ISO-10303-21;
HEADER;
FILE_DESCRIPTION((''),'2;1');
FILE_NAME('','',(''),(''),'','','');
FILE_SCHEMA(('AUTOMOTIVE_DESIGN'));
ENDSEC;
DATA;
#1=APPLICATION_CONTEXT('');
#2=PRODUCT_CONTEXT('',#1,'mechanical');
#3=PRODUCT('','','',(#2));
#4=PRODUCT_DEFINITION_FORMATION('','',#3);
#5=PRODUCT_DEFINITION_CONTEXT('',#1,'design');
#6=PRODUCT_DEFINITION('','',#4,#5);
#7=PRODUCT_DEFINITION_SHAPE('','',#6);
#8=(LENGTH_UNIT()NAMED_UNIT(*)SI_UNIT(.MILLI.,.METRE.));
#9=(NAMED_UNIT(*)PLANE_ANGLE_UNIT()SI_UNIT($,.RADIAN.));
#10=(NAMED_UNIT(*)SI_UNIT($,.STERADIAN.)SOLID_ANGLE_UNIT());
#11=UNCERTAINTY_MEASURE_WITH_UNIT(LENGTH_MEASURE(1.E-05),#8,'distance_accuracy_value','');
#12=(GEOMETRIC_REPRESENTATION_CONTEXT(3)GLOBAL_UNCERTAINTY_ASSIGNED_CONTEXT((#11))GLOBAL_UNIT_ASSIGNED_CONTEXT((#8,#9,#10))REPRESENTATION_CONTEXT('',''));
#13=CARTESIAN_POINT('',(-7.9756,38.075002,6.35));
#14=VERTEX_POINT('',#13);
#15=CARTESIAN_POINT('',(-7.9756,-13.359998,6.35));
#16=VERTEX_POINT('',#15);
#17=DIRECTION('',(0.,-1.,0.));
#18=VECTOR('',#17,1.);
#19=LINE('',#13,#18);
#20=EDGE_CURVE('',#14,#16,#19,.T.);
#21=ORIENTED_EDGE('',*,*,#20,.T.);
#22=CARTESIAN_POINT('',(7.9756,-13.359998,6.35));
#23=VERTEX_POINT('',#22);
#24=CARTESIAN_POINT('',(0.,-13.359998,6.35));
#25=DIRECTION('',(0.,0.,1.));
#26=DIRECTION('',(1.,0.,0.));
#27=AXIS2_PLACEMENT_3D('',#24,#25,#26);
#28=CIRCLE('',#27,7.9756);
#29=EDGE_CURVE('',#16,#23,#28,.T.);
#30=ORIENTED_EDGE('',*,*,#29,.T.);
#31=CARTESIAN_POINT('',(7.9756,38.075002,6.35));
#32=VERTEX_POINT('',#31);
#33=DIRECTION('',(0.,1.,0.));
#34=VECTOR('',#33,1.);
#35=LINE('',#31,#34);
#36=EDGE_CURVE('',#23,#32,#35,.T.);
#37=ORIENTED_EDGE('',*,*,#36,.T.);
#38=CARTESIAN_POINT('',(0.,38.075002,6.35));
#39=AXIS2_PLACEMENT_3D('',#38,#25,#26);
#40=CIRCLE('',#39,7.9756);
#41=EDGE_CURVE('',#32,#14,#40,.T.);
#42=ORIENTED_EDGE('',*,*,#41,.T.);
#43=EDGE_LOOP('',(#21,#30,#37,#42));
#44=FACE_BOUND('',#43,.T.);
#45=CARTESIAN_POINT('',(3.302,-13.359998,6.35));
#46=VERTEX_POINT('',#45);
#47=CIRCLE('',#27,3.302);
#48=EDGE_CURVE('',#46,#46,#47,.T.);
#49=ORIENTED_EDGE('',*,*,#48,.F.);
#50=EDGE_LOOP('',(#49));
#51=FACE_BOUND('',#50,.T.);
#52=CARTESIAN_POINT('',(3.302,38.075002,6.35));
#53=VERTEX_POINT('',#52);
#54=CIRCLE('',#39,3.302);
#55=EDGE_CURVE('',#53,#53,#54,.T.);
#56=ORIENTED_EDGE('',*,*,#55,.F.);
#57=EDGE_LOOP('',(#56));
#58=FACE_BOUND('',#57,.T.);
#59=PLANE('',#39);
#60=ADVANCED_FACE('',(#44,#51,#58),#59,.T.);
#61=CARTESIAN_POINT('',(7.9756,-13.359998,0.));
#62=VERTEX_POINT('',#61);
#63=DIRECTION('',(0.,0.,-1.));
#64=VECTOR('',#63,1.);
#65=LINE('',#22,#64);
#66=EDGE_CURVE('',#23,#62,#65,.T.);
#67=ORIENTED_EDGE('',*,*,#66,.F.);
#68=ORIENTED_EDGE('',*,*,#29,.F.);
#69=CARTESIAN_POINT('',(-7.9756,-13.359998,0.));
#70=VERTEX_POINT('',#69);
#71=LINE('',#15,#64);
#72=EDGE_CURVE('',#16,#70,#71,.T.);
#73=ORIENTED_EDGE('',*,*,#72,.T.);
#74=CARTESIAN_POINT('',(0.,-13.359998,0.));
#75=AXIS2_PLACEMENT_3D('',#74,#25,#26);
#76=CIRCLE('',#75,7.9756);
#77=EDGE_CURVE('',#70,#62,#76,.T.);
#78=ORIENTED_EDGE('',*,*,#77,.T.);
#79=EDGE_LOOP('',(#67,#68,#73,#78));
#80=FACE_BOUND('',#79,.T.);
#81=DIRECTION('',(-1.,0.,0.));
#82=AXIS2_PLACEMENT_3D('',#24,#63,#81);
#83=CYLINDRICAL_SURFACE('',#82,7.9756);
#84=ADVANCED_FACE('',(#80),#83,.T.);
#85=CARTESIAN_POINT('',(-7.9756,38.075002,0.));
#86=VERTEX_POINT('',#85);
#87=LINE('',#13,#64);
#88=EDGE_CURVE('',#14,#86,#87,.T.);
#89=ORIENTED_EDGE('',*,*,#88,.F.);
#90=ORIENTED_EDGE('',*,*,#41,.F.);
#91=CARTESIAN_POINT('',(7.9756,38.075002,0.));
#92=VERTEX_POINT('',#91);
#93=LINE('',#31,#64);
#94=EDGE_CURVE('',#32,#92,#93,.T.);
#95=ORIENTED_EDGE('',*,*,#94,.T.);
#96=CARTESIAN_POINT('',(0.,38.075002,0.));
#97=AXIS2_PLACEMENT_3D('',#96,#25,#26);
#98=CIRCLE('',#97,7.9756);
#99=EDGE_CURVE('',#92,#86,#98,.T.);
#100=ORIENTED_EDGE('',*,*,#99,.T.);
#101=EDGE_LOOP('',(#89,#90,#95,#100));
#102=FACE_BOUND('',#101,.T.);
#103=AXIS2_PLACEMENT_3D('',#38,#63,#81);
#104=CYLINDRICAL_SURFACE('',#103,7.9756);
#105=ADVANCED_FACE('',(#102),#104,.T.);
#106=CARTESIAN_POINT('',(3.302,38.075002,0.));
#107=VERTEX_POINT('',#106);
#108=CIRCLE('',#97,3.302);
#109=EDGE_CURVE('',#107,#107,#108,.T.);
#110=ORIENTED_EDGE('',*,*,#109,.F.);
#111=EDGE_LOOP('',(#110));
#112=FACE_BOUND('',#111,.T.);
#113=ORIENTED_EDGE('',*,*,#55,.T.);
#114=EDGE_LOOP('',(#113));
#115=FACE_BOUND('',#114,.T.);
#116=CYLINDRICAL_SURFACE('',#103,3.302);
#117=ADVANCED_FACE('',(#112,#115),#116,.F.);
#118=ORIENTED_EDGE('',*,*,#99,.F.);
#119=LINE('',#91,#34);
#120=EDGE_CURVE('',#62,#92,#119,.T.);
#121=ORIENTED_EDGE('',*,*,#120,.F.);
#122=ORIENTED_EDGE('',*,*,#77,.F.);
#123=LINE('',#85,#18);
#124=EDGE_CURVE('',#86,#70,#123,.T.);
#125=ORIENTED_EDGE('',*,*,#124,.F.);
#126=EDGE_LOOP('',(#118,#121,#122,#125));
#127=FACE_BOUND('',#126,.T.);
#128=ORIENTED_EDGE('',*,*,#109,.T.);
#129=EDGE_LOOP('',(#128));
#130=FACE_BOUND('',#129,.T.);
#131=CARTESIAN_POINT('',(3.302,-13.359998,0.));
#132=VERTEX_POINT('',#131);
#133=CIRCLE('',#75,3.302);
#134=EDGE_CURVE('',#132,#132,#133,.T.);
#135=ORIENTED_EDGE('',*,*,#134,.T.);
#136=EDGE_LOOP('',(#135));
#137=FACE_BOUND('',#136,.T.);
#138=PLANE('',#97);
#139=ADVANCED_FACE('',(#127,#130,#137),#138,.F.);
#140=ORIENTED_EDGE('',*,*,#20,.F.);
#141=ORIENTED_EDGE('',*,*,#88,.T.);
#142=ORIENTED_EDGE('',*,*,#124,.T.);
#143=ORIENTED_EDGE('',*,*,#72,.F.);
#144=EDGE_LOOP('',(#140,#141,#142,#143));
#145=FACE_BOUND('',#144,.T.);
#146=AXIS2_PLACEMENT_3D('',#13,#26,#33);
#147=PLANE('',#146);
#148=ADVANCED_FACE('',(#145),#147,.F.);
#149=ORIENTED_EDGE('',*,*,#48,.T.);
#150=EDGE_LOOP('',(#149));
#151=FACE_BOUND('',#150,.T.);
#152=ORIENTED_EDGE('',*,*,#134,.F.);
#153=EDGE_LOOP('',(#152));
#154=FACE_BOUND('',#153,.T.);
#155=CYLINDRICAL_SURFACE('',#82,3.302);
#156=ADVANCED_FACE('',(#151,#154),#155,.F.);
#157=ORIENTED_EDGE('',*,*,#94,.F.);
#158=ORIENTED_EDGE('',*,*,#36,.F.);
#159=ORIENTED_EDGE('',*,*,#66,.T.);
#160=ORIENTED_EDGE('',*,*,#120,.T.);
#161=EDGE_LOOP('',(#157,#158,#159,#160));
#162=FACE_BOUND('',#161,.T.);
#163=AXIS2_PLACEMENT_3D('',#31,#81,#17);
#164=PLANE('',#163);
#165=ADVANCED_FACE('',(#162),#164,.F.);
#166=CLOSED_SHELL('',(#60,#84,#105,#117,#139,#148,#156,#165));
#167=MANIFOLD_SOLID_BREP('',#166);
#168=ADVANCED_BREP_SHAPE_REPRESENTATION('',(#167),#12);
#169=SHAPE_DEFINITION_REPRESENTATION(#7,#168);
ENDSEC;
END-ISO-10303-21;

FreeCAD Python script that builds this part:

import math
import FreeCAD as App
import Part
import Sketcher
from FreeCAD import Vector
Q = App.Units.Quantity

doc = App.newDocument("Part")
body = doc.addObject("PartDesign::Body", "Body")

sketch1 = body.newObject("Sketcher::SketchObject", "Sketch")
sketch1.AttachmentSupport = (doc.getObject("XY_Plane"), [""])
sketch1.MapMode = "FlatFace"
sketch1.addGeometry([
    Part.LineSegment(Vector(8, -13.4, 0), Vector(8, 38.1, 0)),
    Part.ArcOfCircle(Part.Circle(Vector(0, 38.1, 0), Vector(0, 0, 1), 8), math.radians(0), math.radians(180)),
    Part.LineSegment(Vector(-8, 38.1, 0), Vector(-8, -13.4, 0)),
    Part.ArcOfCircle(Part.Circle(Vector(0, -13.4, 0), Vector(0, 0, 1), 8), math.radians(180), math.radians(360)),
    Part.Circle(Vector(0, -13.4, 0), Vector(0, 0, 1), 3.3),
    Part.Circle(Vector(0, 38.1, 0), Vector(0, 0, 1), 3.3),
], False)
sketch1.addConstraint([
    Sketcher.Constraint("Tangent", 0, 2, 1, 1),
    Sketcher.Constraint("Tangent", 1, 2, 2, 1),
    Sketcher.Constraint("Tangent", 2, 2, 3, 1),
    Sketcher.Constraint("Tangent", 3, 2, 0, 1),
    Sketcher.Constraint("Vertical", 0),
    Sketcher.Constraint("Vertical", 2),
    Sketcher.Constraint("Coincident", 4, 3, 3, 3),
    Sketcher.Constraint("Coincident", 5, 3, 1, 3),
    Sketcher.Constraint("Equal", 4, 5),
    Sketcher.Constraint("PointOnObject", 1, 3, -2),
    Sketcher.Constraint("Diameter", 4, Q("0.26 in")),
    Sketcher.Constraint("Radius", 1, Q("0.314 in")),
    Sketcher.Constraint("DistanceY", 0, 1, 0, 2, Q("2.025 in")),
    Sketcher.Constraint("DistanceY", -1, 1, 1, 3, 38.075002),
])
pad1 = body.newObject("PartDesign::Pad", "Pad")
pad1.Profile = sketch1
pad1.Length = Q("0.25 in")

doc.recompute()
